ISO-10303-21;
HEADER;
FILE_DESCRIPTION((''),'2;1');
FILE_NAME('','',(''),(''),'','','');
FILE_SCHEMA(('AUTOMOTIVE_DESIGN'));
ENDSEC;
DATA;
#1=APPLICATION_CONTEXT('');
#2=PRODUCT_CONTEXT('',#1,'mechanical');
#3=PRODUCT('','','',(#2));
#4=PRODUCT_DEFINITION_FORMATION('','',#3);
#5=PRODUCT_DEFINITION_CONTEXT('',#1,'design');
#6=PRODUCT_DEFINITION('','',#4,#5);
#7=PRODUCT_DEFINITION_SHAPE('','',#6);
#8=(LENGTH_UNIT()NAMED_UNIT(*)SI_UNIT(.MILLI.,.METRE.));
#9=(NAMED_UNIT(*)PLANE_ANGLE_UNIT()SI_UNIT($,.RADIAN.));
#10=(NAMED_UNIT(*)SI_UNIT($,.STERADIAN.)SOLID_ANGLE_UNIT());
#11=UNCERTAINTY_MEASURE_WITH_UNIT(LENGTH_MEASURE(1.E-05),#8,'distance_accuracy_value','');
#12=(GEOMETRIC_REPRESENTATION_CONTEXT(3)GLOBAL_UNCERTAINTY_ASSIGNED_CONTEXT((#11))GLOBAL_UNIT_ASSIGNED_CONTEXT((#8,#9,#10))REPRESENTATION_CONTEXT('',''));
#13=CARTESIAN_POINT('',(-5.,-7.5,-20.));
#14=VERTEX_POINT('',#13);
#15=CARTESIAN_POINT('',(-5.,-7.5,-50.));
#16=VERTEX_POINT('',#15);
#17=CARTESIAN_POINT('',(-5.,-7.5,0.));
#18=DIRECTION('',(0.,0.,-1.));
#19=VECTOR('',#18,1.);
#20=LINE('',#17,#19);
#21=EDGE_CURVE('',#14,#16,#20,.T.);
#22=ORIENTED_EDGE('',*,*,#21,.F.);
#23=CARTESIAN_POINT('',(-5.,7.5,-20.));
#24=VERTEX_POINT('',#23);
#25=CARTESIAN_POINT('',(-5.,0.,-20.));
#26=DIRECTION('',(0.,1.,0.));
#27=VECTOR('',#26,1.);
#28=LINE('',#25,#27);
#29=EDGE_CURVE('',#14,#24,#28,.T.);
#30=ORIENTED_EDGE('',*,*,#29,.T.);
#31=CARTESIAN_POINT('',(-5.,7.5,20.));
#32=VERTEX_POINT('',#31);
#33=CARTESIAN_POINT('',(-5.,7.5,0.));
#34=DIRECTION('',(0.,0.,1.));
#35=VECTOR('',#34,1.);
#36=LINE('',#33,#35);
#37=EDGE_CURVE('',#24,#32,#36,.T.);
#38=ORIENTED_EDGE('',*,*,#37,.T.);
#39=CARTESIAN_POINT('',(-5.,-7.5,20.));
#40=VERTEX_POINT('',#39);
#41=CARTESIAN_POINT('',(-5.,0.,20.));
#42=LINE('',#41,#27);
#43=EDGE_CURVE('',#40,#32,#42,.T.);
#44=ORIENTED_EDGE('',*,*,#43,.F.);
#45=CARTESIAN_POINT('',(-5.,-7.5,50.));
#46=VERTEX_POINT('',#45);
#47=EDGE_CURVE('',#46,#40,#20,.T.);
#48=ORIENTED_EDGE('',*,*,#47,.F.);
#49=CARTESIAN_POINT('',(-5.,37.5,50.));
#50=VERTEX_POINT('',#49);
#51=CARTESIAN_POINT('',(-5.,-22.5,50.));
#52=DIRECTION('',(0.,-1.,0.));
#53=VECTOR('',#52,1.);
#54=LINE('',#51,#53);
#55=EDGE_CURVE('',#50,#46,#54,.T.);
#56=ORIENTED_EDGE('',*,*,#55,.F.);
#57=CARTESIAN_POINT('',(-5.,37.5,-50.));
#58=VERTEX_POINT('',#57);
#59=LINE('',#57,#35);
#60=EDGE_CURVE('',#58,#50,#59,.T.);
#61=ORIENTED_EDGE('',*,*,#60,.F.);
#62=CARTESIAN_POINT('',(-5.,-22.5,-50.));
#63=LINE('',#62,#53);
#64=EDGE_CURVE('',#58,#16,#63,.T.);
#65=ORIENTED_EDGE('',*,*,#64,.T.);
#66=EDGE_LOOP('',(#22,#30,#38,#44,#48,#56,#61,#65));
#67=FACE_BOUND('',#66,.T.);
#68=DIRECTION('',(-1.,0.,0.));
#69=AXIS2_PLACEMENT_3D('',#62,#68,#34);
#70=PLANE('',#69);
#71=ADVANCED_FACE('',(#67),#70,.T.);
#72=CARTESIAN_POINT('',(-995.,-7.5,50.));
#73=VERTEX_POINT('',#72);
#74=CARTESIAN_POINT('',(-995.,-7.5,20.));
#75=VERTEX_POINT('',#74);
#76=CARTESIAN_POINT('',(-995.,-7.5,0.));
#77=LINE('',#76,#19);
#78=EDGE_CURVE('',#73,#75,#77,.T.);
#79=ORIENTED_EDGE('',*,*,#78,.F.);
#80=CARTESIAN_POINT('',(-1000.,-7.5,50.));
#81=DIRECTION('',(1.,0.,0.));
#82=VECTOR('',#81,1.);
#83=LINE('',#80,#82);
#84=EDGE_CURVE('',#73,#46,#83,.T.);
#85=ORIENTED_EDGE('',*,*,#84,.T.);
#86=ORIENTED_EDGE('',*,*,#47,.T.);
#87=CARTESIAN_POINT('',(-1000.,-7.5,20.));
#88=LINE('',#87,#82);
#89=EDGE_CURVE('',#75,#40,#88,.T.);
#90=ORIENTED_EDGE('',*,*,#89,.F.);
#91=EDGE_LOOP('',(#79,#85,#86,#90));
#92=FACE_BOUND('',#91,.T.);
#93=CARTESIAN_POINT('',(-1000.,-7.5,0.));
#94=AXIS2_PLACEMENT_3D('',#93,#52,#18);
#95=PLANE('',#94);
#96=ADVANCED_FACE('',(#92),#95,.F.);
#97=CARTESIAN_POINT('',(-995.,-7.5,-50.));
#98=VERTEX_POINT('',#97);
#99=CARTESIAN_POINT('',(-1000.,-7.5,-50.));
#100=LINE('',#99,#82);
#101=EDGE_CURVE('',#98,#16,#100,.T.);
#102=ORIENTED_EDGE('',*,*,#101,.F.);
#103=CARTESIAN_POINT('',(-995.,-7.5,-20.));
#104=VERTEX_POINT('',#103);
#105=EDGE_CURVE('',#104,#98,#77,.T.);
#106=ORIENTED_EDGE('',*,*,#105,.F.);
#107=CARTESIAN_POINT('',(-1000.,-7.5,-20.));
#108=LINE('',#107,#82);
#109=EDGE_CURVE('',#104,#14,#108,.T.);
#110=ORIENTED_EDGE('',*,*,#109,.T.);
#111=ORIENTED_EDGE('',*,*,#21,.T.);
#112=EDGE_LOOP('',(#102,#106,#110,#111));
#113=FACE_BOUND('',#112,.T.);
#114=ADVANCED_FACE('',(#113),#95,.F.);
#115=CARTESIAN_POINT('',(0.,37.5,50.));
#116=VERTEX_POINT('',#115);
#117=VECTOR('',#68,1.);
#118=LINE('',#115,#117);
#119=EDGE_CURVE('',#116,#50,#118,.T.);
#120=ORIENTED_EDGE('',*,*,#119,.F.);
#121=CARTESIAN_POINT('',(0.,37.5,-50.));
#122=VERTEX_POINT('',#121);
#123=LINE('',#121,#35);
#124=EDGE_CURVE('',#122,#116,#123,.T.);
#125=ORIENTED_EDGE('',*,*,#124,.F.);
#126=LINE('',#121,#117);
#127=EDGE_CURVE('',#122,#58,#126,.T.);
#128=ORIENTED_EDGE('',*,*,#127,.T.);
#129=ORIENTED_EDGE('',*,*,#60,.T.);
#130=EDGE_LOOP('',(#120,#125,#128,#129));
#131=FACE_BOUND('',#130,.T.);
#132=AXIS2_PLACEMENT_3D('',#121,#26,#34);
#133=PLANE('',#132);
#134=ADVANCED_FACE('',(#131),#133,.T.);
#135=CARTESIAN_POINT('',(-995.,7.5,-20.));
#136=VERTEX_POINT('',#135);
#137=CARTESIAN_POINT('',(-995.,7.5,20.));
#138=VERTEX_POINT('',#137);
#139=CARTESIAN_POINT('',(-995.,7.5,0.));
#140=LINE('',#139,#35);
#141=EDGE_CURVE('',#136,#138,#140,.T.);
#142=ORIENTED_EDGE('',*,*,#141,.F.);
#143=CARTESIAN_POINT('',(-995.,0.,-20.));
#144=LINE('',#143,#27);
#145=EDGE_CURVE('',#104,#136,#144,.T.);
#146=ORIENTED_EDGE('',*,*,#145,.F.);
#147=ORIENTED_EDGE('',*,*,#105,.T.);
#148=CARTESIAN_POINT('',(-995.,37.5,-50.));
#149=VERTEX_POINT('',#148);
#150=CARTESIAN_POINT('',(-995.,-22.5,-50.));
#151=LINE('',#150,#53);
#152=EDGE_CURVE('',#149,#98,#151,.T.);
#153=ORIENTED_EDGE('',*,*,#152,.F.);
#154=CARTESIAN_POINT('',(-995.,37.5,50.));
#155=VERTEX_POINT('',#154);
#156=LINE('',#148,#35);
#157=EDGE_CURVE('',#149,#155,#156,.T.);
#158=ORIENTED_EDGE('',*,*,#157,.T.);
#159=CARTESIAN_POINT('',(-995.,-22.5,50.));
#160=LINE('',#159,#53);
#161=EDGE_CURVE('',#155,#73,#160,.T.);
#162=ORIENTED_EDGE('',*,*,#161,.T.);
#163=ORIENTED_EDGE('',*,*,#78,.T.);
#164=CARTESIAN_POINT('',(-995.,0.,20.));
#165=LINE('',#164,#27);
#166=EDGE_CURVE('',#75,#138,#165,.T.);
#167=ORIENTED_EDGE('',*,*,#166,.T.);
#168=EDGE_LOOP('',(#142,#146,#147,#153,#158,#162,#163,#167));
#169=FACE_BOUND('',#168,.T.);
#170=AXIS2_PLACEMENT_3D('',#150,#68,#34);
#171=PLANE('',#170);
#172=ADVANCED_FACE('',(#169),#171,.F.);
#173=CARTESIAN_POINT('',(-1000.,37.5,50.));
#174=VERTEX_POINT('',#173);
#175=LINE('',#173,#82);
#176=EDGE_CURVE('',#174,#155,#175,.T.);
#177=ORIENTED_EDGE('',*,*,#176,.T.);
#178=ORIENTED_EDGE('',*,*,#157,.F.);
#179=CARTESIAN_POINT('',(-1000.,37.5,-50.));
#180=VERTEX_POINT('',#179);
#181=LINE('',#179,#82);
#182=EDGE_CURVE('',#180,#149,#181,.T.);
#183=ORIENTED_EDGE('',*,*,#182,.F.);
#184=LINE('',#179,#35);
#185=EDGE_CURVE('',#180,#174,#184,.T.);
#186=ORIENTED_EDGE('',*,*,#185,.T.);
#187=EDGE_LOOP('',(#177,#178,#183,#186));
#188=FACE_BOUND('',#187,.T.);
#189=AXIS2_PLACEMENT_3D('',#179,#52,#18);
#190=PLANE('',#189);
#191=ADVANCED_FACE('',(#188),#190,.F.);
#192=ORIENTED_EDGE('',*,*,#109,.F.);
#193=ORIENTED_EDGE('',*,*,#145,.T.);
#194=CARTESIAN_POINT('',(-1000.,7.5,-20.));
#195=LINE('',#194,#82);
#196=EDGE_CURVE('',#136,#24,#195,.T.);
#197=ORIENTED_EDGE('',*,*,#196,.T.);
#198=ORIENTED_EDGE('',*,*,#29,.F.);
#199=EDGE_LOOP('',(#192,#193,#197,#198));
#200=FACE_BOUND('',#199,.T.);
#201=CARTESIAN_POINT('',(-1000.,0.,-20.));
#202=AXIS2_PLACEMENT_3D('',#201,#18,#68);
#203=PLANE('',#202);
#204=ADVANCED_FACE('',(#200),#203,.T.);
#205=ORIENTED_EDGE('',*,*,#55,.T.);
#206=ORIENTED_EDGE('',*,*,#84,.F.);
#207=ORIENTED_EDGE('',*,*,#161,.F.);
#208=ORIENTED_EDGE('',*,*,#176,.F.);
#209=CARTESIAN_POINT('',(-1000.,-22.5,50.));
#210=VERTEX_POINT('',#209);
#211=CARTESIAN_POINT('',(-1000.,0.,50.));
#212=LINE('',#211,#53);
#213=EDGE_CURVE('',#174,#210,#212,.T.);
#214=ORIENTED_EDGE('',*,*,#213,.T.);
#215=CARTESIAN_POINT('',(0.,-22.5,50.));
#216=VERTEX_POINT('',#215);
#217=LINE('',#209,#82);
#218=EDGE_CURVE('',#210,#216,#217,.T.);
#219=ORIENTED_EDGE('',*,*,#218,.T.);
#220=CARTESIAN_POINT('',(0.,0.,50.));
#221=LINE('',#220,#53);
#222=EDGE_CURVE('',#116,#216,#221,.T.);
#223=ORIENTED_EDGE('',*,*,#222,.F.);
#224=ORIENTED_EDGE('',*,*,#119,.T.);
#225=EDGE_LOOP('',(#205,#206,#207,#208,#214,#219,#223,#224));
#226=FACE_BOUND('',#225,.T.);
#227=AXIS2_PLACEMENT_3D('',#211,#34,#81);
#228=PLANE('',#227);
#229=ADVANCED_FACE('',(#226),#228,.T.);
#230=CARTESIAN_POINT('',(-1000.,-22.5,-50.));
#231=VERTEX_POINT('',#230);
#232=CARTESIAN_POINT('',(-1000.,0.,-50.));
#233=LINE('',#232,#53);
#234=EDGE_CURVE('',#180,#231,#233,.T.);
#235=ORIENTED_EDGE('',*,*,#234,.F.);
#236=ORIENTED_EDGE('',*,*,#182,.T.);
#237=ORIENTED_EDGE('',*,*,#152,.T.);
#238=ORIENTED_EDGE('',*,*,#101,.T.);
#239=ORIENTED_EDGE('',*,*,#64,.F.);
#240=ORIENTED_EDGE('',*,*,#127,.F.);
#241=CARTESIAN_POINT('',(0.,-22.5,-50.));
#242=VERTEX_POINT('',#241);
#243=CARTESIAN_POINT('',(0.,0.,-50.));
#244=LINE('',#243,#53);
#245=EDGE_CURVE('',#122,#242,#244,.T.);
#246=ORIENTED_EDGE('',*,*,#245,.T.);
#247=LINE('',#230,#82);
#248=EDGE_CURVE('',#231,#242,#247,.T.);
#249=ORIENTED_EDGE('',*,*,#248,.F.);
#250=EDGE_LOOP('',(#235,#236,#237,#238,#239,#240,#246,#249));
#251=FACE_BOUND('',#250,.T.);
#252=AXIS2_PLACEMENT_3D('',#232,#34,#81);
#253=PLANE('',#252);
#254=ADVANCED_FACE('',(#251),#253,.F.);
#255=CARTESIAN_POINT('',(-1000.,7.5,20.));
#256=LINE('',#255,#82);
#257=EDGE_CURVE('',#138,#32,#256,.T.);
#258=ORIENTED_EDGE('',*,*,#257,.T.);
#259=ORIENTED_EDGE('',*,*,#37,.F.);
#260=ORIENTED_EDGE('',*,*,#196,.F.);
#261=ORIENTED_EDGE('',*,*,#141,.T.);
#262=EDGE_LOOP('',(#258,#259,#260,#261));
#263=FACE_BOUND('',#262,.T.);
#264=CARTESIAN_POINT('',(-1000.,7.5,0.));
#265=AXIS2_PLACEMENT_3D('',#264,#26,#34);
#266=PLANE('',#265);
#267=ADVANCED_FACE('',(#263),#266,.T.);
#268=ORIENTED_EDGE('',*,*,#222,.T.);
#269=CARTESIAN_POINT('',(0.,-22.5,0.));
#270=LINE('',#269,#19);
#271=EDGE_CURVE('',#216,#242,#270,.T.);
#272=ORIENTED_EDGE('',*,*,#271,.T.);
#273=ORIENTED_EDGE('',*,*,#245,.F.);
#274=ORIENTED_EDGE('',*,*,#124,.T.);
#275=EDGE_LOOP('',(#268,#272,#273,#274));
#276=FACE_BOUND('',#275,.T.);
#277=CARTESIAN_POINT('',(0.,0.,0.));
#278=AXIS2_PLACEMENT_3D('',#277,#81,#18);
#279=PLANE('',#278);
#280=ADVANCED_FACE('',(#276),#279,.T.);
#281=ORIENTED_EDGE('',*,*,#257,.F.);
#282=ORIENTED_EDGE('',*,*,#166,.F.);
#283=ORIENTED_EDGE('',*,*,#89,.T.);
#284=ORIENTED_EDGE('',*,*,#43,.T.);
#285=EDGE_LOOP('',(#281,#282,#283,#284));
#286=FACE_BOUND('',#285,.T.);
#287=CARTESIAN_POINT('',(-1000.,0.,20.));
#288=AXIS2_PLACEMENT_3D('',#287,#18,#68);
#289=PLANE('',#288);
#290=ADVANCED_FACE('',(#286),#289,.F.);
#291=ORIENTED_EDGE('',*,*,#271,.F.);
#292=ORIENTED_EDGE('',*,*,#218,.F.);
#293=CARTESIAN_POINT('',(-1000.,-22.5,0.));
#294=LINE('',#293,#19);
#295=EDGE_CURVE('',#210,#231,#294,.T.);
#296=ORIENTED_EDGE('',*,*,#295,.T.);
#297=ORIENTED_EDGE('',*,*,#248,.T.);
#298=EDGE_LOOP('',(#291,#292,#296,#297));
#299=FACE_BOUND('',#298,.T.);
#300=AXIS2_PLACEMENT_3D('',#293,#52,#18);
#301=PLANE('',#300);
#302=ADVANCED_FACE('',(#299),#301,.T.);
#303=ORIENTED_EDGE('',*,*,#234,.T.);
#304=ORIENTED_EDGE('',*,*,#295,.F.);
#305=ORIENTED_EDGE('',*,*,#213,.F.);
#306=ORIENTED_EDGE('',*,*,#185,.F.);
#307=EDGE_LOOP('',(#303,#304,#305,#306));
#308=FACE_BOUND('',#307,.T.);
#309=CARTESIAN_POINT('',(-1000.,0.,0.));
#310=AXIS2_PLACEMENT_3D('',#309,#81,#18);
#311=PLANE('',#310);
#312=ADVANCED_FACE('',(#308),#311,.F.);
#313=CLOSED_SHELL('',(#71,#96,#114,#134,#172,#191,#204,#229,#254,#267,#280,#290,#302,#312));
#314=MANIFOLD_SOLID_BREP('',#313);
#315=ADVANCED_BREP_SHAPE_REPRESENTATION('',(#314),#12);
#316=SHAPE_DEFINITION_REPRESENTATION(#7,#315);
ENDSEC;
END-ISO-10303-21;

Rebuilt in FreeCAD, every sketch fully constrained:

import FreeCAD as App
import Part
import Sketcher
Q = App.Units.Quantity


def add_polygon(sketch, points):
    """Adds a closed chain of lines whose ends are joined by coincident constraints."""
    first, n = sketch.GeometryCount, len(points)
    for a, b in zip(points, points[1:] + points[:1]):
        sketch.addGeometry(Part.LineSegment(App.Vector(*a, 0), App.Vector(*b, 0)), False)
    for i in range(n):
        sketch.addConstraint(Sketcher.Constraint("Coincident", first + i, 2, first + (i + 1) % n, 1))

doc = App.newDocument("Part")
body = doc.addObject("PartDesign::Body", "Body")

sketch1 = doc.addObject("Sketcher::SketchObject", "Sketch")
body.addObject(sketch1)
sketch1.AttachmentSupport = (doc.YZ_Plane, [""])
sketch1.MapMode = "FlatFace"
add_polygon(sketch1, [(-8, -50), (-8, -20), (8, -20), (8, 20), (-8, 20), (-8, 50), (-22, 50), (-22, -50)])
sketch1.addConstraint(Sketcher.Constraint("Vertical", 0))
sketch1.addConstraint(Sketcher.Constraint("Horizontal", 1))
sketch1.addConstraint(Sketcher.Constraint("Vertical", 2))
sketch1.addConstraint(Sketcher.Constraint("Horizontal", 3))
sketch1.addConstraint(Sketcher.Constraint("Vertical", 4))
sketch1.addConstraint(Sketcher.Constraint("Horizontal", 5))
sketch1.addConstraint(Sketcher.Constraint("Vertical", 6))
sketch1.addConstraint(Sketcher.Constraint("Horizontal", 7))
sketch1.addConstraint(Sketcher.Constraint("Symmetric", 0, 2, 2, 2, -1, 1))
sketch1.addConstraint(Sketcher.Constraint("Symmetric", 4, 2, 7, 2, -1))
sketch1.addConstraint(Sketcher.Constraint("Equal", 3, 5))
sketch1.addConstraint(Sketcher.Constraint("DistanceX", 1, 1, 1, 2, Q("15 mm")))
sketch1.addConstraint(Sketcher.Constraint("DistanceY", 0, 1, 0, 2, Q("30 mm")))
sketch1.addConstraint(Sketcher.Constraint("DistanceY", 2, 1, 2, 2, Q("40 mm")))
pad1 = doc.addObject("PartDesign::Pad", "Pad")
body.addObject(pad1)
pad1.Profile = sketch1
pad1.Length = 1000
pad1.Reversed = True

sketch2 = doc.addObject("Sketcher::SketchObject", "Sketch001")
body.addObject(sketch2)
sketch2.AttachmentSupport = (doc.XY_Plane, [""])
sketch2.MapMode = "FlatFace"
sketch2.AttachmentOffset = App.Placement(App.Vector(0, 0, 50), App.Rotation())
add_polygon(sketch2, [(-5, 38), (-5, -22), (0, -22), (0, 38)])
sketch2.addConstraint(Sketcher.Constraint("Vertical", 0))
sketch2.addConstraint(Sketcher.Constraint("Horizontal", 1))
sketch2.addConstraint(Sketcher.Constraint("Vertical", 2))
sketch2.addConstraint(Sketcher.Constraint("Horizontal", 3))
sketch2.addConstraint(Sketcher.Constraint("PointOnObject", 1, 2, -2))
sketch2.addConstraint(Sketcher.Constraint("DistanceX", 1, 1, 1, 2, Q("5 mm")))
sketch2.addConstraint(Sketcher.Constraint("DistanceY", 0, 2, 0, 1, Q("60 mm")))
sketch2.addConstraint(Sketcher.Constraint("DistanceY", 0, 2, -1, 1, Q("22.5 mm")))
pad2 = doc.addObject("PartDesign::Pad", "Pad001")
body.addObject(pad2)
pad2.Profile = sketch2
pad2.Length = 100
pad2.Reversed = True
doc.recompute()

datumplane = doc.addObject("PartDesign::Plane", "DatumPlane")
body.addObject(datumplane)
datumplane.AttachmentSupport = (doc.YZ_Plane, [""])
datumplane.MapMode = "FlatFace"
datumplane.AttachmentOffset = App.Placement(App.Vector(0, 0, -500), App.Rotation())
mirrored = doc.addObject("PartDesign::Mirrored", "Mirrored")
body.addObject(mirrored)
mirrored.Originals = [pad2]
mirrored.MirrorPlane = (datumplane, [""])
body.Tip = mirrored

doc.recompute()
